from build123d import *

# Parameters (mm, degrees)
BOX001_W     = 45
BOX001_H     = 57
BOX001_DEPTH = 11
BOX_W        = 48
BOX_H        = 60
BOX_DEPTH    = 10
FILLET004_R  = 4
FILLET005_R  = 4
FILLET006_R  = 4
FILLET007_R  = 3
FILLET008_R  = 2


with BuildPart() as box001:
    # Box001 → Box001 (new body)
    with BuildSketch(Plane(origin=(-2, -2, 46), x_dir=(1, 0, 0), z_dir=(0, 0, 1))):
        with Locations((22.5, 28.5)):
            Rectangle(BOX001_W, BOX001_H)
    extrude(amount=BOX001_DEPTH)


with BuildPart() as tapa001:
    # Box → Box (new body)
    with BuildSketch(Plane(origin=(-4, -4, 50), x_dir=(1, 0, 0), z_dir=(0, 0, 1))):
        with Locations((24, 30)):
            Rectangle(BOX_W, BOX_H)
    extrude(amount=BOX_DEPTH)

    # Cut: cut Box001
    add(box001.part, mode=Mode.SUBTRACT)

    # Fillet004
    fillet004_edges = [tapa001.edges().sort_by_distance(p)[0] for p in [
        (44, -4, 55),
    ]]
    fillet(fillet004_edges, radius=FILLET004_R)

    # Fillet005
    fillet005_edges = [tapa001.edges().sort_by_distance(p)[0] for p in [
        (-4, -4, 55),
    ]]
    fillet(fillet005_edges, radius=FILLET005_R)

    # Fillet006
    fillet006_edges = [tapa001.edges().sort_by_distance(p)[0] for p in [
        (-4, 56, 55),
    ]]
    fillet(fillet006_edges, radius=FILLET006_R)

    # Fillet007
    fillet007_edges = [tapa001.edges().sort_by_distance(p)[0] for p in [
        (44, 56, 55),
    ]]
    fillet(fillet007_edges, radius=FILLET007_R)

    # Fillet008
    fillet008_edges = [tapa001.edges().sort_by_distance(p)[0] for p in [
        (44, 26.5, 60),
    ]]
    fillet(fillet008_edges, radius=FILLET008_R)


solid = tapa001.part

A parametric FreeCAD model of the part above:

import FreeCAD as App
import Part
import Sketcher
from FreeCAD import Vector


def edges_at(feature, points):
    """Names of the edges that pass closest to the given points."""
    edges = feature.Shape.Edges
    near = lambda p: min(range(len(edges)), key=lambda i: edges[i].distToShape(Part.Vertex(*p))[0])
    return sorted({f"Edge{near(p) + 1}" for p in points})


def add_polygon(sketch, points):
    """Adds a closed chain of lines whose ends are joined by coincident constraints."""
    first, n = sketch.GeometryCount, len(points)
    for a, b in zip(points, points[1:] + points[:1]):
        sketch.addGeometry(Part.LineSegment(App.Vector(*a, 0), App.Vector(*b, 0)), False)
    for i in range(n):
        sketch.addConstraint(Sketcher.Constraint("Coincident", first + i, 2, first + (i + 1) % n, 1))

doc = App.newDocument("Part")
body = doc.addObject("PartDesign::Body", "Body")

# Sketch on XY plane
sketch1 = body.newObject("Sketcher::SketchObject", "Sketch")
sketch1.AttachmentSupport = (doc.getObject("XY_Plane"), [""])
sketch1.MapMode = "FlatFace"
sketch1.AttachmentOffset = App.Placement(Vector(0, 0, 46), App.Rotation())
add_polygon(sketch1, [(-2, 55), (-2, -2), (43, -2), (43, 55)])  # lines 0-3
sketch1.addConstraint([
    Sketcher.Constraint("Vertical", 0),
    Sketcher.Constraint("Horizontal", 1),
    Sketcher.Constraint("Vertical", 2),
    Sketcher.Constraint("Horizontal", 3),
    Sketcher.Constraint("DistanceX", 1, 1, 1, 2, 45.0),
    Sketcher.Constraint("DistanceY", 0, 2, 0, 1, 57.0),
    Sketcher.Constraint("DistanceX", 0, 2, -1, 1, 2.0),
    Sketcher.Constraint("DistanceY", 0, 2, -1, 1, 2.0),
])
pad1 = body.newObject("PartDesign::Pad", "Pad")
pad1.Profile = sketch1
pad1.Length = 11
body2 = doc.addObject("PartDesign::Body", "Body001")

# Sketch on XY plane
sketch2 = body2.newObject("Sketcher::SketchObject", "Sketch001")
sketch2.AttachmentSupport = (doc.getObject("XY_Plane001"), [""])
sketch2.MapMode = "FlatFace"
sketch2.AttachmentOffset = App.Placement(Vector(0, 0, 50), App.Rotation())
add_polygon(sketch2, [(-4, 56), (-4, -4), (44, -4), (44, 56)])  # lines 0-3
sketch2.addConstraint([
    Sketcher.Constraint("Vertical", 0),
    Sketcher.Constraint("Horizontal", 1),
    Sketcher.Constraint("Vertical", 2),
    Sketcher.Constraint("Horizontal", 3),
    Sketcher.Constraint("DistanceX", 1, 1, 1, 2, 48.0),
    Sketcher.Constraint("DistanceY", 0, 2, 0, 1, 60.0),
    Sketcher.Constraint("DistanceX", 0, 2, -1, 1, 4.0),
    Sketcher.Constraint("DistanceY", 0, 2, -1, 1, 4.0),
])
pad2 = body2.newObject("PartDesign::Pad", "Pad001")
pad2.Profile = sketch2
pad2.Length = 10
doc.recompute()

boolean = body2.newObject("PartDesign::Boolean", "Boolean")
boolean.Type = "Cut"
boolean.addObjects([body])
doc.recompute()

fillet = body2.newObject("PartDesign::Fillet", "Fillet")
fillet.Base = (boolean, edges_at(boolean, [(44, -4, 55)]))
fillet.Radius = 4
doc.recompute()

fillet2 = body2.newObject("PartDesign::Fillet", "Fillet001")
fillet2.Base = (fillet, edges_at(fillet, [(-4, -4, 55)]))
fillet2.Radius = 4
doc.recompute()

fillet3 = body2.newObject("PartDesign::Fillet", "Fillet002")
fillet3.Base = (fillet2, edges_at(fillet2, [(-4, 56, 55)]))
fillet3.Radius = 4
doc.recompute()

fillet4 = body2.newObject("PartDesign::Fillet", "Fillet003")
fillet4.Base = (fillet3, edges_at(fillet3, [(44, 56, 55)]))
fillet4.Radius = 3
doc.recompute()

fillet5 = body2.newObject("PartDesign::Fillet", "Fillet004")
fillet5.Base = (fillet4, edges_at(fillet4, [(44, 26.5, 60)]))
fillet5.Radius = 2

doc.recompute()
